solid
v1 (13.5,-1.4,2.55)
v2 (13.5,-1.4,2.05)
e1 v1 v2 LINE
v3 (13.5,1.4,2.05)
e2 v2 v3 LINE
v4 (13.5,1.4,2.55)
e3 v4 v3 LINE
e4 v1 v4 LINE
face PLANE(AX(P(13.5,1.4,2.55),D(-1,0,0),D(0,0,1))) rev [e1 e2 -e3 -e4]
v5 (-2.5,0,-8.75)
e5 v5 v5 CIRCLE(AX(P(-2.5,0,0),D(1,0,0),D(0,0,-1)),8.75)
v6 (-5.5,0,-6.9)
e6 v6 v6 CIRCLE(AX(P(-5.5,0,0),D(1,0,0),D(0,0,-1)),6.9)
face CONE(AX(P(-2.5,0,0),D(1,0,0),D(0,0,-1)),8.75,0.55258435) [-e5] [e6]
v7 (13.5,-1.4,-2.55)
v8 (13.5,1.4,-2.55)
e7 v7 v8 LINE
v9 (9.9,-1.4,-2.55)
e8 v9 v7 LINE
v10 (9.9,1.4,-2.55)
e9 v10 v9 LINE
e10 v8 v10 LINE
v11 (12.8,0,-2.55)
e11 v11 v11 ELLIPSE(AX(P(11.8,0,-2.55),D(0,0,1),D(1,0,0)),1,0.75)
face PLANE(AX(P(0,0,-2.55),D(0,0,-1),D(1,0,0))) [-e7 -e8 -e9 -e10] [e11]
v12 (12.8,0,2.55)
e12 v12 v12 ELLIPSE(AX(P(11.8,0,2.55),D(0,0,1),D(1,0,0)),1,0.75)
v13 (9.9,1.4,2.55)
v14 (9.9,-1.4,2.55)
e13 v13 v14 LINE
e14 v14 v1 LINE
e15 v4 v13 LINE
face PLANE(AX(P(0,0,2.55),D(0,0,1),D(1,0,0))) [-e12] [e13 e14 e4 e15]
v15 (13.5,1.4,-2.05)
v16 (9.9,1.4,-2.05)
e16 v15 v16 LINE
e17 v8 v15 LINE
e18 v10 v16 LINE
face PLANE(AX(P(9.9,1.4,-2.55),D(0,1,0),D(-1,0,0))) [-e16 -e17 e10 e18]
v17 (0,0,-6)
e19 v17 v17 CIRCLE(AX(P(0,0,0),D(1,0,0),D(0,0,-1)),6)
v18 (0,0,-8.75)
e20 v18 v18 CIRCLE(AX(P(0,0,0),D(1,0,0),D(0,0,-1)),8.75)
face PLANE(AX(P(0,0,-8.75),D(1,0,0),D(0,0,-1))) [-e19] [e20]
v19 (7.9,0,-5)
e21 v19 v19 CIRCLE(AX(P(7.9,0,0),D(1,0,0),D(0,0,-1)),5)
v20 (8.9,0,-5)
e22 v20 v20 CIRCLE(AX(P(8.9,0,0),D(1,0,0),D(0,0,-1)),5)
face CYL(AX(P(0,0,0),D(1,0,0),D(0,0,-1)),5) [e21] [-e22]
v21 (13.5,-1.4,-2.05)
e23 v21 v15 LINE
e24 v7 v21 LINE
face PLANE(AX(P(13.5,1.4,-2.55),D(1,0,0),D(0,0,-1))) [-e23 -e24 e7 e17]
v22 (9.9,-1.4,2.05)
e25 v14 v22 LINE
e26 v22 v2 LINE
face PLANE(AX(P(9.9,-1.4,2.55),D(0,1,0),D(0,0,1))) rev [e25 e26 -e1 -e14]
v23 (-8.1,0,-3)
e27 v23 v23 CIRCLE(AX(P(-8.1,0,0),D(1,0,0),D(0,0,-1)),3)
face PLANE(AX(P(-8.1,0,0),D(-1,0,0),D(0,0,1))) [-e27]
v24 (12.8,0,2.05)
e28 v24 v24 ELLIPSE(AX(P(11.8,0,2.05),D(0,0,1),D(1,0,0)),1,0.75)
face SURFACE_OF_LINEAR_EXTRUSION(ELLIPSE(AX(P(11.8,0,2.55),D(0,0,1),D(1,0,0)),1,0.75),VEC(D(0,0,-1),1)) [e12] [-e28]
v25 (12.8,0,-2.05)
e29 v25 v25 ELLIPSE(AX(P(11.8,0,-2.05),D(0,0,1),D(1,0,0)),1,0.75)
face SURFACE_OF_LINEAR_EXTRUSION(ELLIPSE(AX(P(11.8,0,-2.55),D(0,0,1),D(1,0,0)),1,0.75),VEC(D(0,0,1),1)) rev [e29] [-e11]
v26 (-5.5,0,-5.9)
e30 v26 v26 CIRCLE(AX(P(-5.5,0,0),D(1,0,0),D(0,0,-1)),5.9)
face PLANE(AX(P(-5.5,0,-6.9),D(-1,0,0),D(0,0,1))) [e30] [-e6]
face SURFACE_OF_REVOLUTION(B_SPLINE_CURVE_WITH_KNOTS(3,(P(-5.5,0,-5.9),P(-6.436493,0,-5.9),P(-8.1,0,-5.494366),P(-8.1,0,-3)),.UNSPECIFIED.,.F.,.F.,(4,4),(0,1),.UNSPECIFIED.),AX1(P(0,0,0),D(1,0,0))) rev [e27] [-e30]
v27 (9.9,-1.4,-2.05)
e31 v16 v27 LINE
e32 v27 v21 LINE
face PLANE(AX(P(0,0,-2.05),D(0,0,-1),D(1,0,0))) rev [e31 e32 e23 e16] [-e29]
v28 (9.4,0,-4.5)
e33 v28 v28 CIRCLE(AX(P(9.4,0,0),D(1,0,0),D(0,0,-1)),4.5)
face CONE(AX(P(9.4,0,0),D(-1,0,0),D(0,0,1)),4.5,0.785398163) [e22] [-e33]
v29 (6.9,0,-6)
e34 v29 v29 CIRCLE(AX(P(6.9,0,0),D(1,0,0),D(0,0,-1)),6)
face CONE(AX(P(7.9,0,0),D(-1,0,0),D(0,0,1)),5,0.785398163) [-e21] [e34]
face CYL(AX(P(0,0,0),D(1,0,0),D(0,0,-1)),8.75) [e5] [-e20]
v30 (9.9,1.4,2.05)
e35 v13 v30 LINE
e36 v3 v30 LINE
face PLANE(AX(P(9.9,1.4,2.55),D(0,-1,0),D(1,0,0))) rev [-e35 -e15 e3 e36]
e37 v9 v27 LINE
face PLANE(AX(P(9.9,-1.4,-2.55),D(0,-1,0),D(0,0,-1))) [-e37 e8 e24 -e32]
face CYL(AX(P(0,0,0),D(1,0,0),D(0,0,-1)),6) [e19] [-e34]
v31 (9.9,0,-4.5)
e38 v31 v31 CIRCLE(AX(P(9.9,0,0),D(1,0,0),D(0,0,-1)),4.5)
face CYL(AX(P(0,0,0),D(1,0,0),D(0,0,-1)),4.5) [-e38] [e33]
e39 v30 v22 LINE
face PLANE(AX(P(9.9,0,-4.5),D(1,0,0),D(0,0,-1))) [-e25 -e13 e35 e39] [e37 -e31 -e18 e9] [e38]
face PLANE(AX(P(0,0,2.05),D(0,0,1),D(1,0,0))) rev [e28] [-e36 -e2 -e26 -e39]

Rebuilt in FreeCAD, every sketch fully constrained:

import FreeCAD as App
import Part
import Sketcher

V = App.Vector
Q = App.Units.Quantity


def add_polygon(sketch, points):
    """Adds a closed chain of lines whose ends are joined by coincident constraints."""
    first, n = sketch.GeometryCount, len(points)
    for a, b in zip(points, points[1:] + points[:1]):
        sketch.addGeometry(Part.LineSegment(App.Vector(*a, 0), App.Vector(*b, 0)), False)
    for i in range(n):
        sketch.addConstraint(Sketcher.Constraint("Coincident", first + i, 2, first + (i + 1) % n, 1))

doc = App.newDocument("Part")
body = doc.addObject("PartDesign::Body", "Body")

# Sketch on XZ plane
sketch1 = doc.addObject("Sketcher::SketchObject", "Sketch")
body.addObject(sketch1)
sketch1.AttachmentSupport = (doc.XZ_Plane, [""])
sketch1.MapMode = "FlatFace"
sketch1.addGeometry([
    Part.LineSegment(V(0, -8.75, 0), V(-2.5, -8.75, 0)),  # 0
    Part.LineSegment(V(-2.5, -8.75, 0), V(-5.5, -6.9, 0)),  # 1
    Part.LineSegment(V(-5.5, -6.9, 0), V(-5.5, -5.9, 0)),  # 2
    Part.BSplineCurve([V(-5.5, -5.9, 0), V(-6.436493, -5.9, 0), V(-8.1, -5.494366, 0), V(-8.1, -3, 0)], [4, 4], [0, 1], False, 3, [1, 1, 1, 1], False),  # 3
    Part.LineSegment(V(-8.1, -3, 0), V(-8.1, 0, 0)),  # 4
    Part.LineSegment(V(-8.1, 0, 0), V(9.9, 0, 0)),  # 5
    Part.LineSegment(V(9.9, 0, 0), V(9.9, -4.5, 0)),  # 6
    Part.LineSegment(V(9.9, -4.5, 0), V(9.4, -4.5, 0)),  # 7
    Part.LineSegment(V(9.4, -4.5, 0), V(8.9, -5, 0)),  # 8
    Part.LineSegment(V(8.9, -5, 0), V(7.9, -5, 0)),  # 9
    Part.LineSegment(V(7.9, -5, 0), V(6.9, -6, 0)),  # 10
    Part.LineSegment(V(6.9, -6, 0), V(0, -6, 0)),  # 11
    Part.LineSegment(V(0, -6, 0), V(0, -8.75, 0)),  # 12
], False)
sketch1.addConstraint([
    Sketcher.Constraint("Block", 3),
    Sketcher.Constraint("Coincident", 0, 2, 1, 1),
    Sketcher.Constraint("Coincident", 1, 2, 2, 1),
    Sketcher.Constraint("Coincident", 2, 2, 3, 1),
    Sketcher.Constraint("Coincident", 3, 2, 4, 1),
    Sketcher.Constraint("Coincident", 4, 2, 5, 1),
    Sketcher.Constraint("Coincident", 5, 2, 6, 1),
    Sketcher.Constraint("Coincident", 6, 2, 7, 1),
    Sketcher.Constraint("Coincident", 7, 2, 8, 1),
    Sketcher.Constraint("Coincident", 8, 2, 9, 1),
    Sketcher.Constraint("Coincident", 9, 2, 10, 1),
    Sketcher.Constraint("Coincident", 10, 2, 11, 1),
    Sketcher.Constraint("Coincident", 11, 2, 12, 1),
    Sketcher.Constraint("Coincident", 12, 2, 0, 1),
    Sketcher.Constraint("Horizontal", 0),
    Sketcher.Constraint("Vertical", 2),
    Sketcher.Constraint("Vertical", 4),
    Sketcher.Constraint("Horizontal", 5),
    Sketcher.Constraint("Vertical", 6),
    Sketcher.Constraint("Horizontal", 7),
    Sketcher.Constraint("Horizontal", 9),
    Sketcher.Constraint("Horizontal", 11),
    Sketcher.Constraint("Vertical", 12),
    Sketcher.Constraint("PointOnObject", 4, 2, -1),
    Sketcher.Constraint("PointOnObject", 11, 2, -2),
    Sketcher.Constraint("Parallel", 8, 10),
    Sketcher.Constraint("Equal", 9, 2),
    Sketcher.Constraint("DistanceX", 5, 1, 5, 2, Q("18 mm")),
    Sketcher.Constraint("DistanceX", 9, 2, 9, 1, Q("1 mm")),
    Sketcher.Constraint("Angle", 8, Q("-135 deg")),
    Sketcher.Constraint("DistanceX", 0, 2, 0, 1, Q("2.5 mm")),
    Sketcher.Constraint("DistanceX", 7, 2, 7, 1, Q("0.5 mm")),
    Sketcher.Constraint("DistanceX", 11, 2, 11, 1, Q("6.9 mm")),
    Sketcher.Constraint("DistanceY", 6, 2, 6, 1, Q("4.5 mm")),
    Sketcher.Constraint("DistanceY", 8, 2, -1, 1, Q("5 mm")),
    Sketcher.Constraint("DistanceY", 12, 2, 12, 1, Q("2.75 mm")),
])
revolution = doc.addObject("PartDesign::Revolution", "Revolution")
body.addObject(revolution)
revolution.Profile = sketch1
revolution.ReferenceAxis = (sketch1, ["H_Axis"])
revolution.Angle = 360

# Sketch on XY plane
sketch2 = doc.addObject("Sketcher::SketchObject", "Sketch001")
body.addObject(sketch2)
sketch2.AttachmentSupport = (doc.XY_Plane, [""])
sketch2.MapMode = "FlatFace"
sketch2.AttachmentOffset = App.Placement(V(0, 0, 2.3), App.Rotation())
add_polygon(sketch2, [(9.9, 1.4), (9.9, -1.4), (13.5, -1.4), (13.5, 1.4)])  # lines 0-3
sketch2.addGeometry(Part.Ellipse(V(12.8, 0, 0), V(11.8, 0.75, 0), V(11.8, 0, 0)), False)  # 4
sketch2.addConstraint([
    Sketcher.Constraint("Block", 4),
    Sketcher.Constraint("Vertical", 0),
    Sketcher.Constraint("Horizontal", 1),
    Sketcher.Constraint("Vertical", 2),
    Sketcher.Constraint("Horizontal", 3),
    Sketcher.Constraint("DistanceX", 1, 1, 1, 2, Q("3.6 mm")),
    Sketcher.Constraint("DistanceY", 0, 2, 0, 1, Q("2.8 mm")),
    Sketcher.Constraint("DistanceX", -1, 1, 0, 2, Q("9.9 mm")),
    Sketcher.Constraint("DistanceY", 0, 2, -1, 1, Q("1.4 mm")),
])
pad1 = doc.addObject("PartDesign::Pad", "Pad")
body.addObject(pad1)
pad1.Profile = sketch2
pad1.Length = 0.5
pad1.Midplane = True
doc.recompute()

mirrored = doc.addObject("PartDesign::Mirrored", "Mirrored")
body.addObject(mirrored)
mirrored.Originals = [pad1]
mirrored.MirrorPlane = (doc.XY_Plane, [""])
body.Tip = mirrored

doc.recompute()
